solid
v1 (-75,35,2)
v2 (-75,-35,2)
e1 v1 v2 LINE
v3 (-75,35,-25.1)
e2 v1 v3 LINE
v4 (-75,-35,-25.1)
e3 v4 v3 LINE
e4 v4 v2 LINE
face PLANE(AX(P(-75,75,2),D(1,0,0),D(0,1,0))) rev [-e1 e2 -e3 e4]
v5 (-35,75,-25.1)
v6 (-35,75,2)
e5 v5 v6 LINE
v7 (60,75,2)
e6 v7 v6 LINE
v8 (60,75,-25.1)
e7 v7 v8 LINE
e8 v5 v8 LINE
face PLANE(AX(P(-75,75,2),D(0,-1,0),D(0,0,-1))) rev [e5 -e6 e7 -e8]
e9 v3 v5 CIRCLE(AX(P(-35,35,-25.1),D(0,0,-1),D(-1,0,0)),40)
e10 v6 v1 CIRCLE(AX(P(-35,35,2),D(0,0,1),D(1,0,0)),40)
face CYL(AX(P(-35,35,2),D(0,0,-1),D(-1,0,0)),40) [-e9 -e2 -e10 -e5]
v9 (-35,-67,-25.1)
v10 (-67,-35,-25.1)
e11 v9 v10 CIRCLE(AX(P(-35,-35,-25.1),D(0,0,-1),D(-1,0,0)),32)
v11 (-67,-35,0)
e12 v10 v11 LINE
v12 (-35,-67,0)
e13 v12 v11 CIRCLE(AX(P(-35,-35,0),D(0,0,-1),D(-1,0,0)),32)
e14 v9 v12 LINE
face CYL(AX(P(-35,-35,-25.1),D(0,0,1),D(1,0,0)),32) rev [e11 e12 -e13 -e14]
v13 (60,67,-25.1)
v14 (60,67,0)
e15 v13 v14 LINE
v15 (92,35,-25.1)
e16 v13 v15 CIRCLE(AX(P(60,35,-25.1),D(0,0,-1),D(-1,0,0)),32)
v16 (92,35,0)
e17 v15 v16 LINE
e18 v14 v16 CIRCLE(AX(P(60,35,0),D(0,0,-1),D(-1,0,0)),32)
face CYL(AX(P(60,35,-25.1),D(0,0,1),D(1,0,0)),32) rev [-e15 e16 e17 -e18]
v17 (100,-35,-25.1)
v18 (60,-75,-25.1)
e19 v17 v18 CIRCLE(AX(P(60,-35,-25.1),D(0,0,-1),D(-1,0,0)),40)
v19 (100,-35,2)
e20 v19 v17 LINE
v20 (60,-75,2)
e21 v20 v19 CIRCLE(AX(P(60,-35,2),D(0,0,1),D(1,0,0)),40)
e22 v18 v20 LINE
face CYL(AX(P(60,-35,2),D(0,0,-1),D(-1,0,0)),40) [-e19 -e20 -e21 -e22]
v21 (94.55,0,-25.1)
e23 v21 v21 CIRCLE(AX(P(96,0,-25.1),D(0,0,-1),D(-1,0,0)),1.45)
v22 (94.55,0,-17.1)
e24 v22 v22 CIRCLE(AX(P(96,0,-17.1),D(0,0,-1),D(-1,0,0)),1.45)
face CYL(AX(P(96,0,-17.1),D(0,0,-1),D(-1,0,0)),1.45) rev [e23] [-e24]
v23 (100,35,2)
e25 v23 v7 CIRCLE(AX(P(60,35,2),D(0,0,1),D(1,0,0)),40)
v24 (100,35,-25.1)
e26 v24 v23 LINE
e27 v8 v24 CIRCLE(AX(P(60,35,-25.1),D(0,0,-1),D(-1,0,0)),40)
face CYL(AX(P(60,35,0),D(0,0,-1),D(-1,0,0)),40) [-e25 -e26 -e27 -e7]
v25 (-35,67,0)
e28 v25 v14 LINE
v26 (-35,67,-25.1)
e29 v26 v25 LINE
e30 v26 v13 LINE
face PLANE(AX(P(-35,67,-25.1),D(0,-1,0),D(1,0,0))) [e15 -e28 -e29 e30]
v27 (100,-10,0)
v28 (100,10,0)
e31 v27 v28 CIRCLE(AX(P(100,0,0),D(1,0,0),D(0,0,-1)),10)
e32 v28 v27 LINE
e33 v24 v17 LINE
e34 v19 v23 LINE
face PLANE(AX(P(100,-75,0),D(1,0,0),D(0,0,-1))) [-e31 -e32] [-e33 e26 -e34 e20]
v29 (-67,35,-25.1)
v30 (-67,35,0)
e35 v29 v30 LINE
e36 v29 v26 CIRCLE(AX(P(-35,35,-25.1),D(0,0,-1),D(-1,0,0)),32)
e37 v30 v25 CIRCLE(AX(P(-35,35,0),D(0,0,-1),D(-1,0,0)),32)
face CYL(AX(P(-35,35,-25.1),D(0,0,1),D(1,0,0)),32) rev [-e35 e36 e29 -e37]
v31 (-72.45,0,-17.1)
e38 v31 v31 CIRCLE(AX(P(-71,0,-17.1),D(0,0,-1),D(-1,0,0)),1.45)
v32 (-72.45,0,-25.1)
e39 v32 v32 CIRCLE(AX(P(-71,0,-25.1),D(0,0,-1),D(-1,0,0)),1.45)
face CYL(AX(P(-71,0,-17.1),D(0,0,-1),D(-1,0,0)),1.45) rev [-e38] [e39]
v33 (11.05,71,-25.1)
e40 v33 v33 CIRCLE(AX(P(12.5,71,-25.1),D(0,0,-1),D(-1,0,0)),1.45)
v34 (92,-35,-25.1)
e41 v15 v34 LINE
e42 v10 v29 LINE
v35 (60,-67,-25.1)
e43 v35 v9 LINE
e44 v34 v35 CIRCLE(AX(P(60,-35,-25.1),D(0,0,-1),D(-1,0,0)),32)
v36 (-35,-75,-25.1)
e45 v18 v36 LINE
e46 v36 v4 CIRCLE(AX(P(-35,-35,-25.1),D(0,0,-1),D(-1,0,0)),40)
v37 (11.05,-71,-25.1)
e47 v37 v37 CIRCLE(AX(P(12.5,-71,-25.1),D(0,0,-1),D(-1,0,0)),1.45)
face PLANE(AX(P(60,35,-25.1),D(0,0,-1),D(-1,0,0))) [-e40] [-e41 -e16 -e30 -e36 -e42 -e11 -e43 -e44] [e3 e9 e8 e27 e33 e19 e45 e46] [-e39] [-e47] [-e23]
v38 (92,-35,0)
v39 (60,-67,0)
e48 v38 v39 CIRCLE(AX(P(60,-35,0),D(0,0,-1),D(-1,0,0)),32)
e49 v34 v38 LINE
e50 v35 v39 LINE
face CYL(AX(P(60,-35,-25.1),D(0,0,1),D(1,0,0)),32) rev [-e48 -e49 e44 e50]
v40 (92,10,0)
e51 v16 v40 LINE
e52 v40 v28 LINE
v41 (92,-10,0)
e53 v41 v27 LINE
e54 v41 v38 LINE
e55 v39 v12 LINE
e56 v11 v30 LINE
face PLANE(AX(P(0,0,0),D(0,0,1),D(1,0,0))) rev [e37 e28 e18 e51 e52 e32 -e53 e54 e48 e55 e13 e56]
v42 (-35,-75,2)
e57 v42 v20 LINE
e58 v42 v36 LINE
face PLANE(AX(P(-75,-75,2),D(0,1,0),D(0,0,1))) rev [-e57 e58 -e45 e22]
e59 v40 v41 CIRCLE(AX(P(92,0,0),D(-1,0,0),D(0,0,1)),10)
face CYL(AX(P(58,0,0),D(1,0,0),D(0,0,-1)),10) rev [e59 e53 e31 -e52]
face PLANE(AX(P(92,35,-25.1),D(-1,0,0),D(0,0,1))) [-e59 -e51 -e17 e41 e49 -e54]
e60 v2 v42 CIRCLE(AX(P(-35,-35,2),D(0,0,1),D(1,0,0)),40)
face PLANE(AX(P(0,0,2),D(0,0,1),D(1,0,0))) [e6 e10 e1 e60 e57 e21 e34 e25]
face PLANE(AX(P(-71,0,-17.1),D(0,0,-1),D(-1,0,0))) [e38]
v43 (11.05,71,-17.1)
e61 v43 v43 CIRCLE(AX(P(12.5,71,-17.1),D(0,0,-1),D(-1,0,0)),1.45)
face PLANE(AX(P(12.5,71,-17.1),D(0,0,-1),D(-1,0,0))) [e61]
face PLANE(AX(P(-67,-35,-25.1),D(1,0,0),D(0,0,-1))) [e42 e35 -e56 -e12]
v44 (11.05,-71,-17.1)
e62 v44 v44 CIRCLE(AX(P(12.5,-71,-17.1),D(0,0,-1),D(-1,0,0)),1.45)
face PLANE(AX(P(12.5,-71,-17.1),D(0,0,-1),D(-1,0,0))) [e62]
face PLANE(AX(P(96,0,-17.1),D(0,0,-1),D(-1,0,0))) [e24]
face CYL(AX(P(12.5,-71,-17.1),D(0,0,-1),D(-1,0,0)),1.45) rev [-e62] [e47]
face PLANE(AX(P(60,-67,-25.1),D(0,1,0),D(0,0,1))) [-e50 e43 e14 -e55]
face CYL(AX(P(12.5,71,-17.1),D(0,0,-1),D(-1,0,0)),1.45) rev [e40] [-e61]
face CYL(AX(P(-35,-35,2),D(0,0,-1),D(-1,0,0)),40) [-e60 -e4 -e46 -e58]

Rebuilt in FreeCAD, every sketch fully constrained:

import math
import FreeCAD as App
import Part
import Sketcher


def edges_at(feature, points):
    """Names of the edges that pass closest to the given points."""
    edges = feature.Shape.Edges
    near = lambda p: min(range(len(edges)), key=lambda i: edges[i].distToShape(Part.Vertex(*p))[0])
    return sorted({f"Edge{near(p) + 1}" for p in points})


def add_polygon(sketch, points):
    """Adds a closed chain of lines whose ends are joined by coincident constraints."""
    first, n = sketch.GeometryCount, len(points)
    for a, b in zip(points, points[1:] + points[:1]):
        sketch.addGeometry(Part.LineSegment(App.Vector(*a, 0), App.Vector(*b, 0)), False)
    for i in range(n):
        sketch.addConstraint(Sketcher.Constraint("Coincident", first + i, 2, first + (i + 1) % n, 1))

doc = App.newDocument("Part")
params = doc.addObject("Spreadsheet::Sheet", "Params")
for row, (alias, value) in enumerate([
    ("sketch1_width", "150 mm"),
    ("pad1_length", "2 mm"),
    ("fillet_radius", "40 mm"),
    ("sketch2_radius", "40 mm"),
    ("sketch2_width", "65 mm"),
    ("sketch2_height", "70 mm"),
    ("pad2_length", "2 mm"),
    ("fillet2_radius", "40 mm"),
    ("sketch3_radius", "40 mm"),
    ("sketch3_radius2", "32 mm"),
    ("sketch3_width", "95 mm"),
    ("sketch3_height", "70 mm"),
    ("pad3_length", "25.1 mm"),
    ("sketch4_diameter", "2.9 mm"),
    ("pocket1_length", "8 mm"),
    ("sketch5_radius", "10 mm"),
    ("pocket2_length", "42 mm"),
], start=1):
    params.set(f"A{row}", alias)
    params.set(f"B{row}", "=" + value)
    params.setAlias(f"B{row}", alias)

body = doc.addObject("PartDesign::Body", "Body")

# Sketch on XY plane
sketch1 = body.newObject("Sketcher::SketchObject", "Sketch")
sketch1.AttachmentSupport = (doc.getObject("XY_Plane"), [""])
sketch1.MapMode = "FlatFace"
add_polygon(sketch1, [(-75, 75), (-75, -75), (75, -75), (75, 75)])  # lines 0-3
sketch1.addConstraint(Sketcher.Constraint("Vertical", 0))
sketch1.addConstraint(Sketcher.Constraint("Horizontal", 1))
sketch1.addConstraint(Sketcher.Constraint("Vertical", 2))
sketch1.addConstraint(Sketcher.Constraint("Horizontal", 3))
sketch1.addConstraint(Sketcher.Constraint("Symmetric", 0, 2, 2, 2, -1, 1))
sketch1.addConstraint(Sketcher.Constraint("Equal", 3, 0))
sketch1.addConstraint(Sketcher.Constraint("DistanceX", 1, 1, 1, 2, 150.0))
sketch1.setExpression("Constraints[10]", "Params.sketch1_width")
pad1 = body.newObject("PartDesign::Pad", "Pad")
pad1.Profile = sketch1
pad1.setExpression("Length", "Params.pad1_length")
doc.recompute()

fillet = body.newObject("PartDesign::Fillet", "Fillet")
fillet.Base = (pad1, edges_at(pad1, [
    (-75, 75, 1),
    (75, 75, 1),
    (75, -75, 1),
    (-75, -75, 1),
]))
fillet.setExpression("Radius", "Params.fillet_radius")

# Sketch on XY plane
sketch2 = body.newObject("Sketcher::SketchObject", "Sketch001")
sketch2.AttachmentSupport = (doc.getObject("XY_Plane"), [""])
sketch2.MapMode = "FlatFace"
sketch2.AttachmentOffset = App.Placement(App.Vector(0, 0, 2), App.Rotation())
sketch2.addGeometry(Part.LineSegment(App.Vector(100, 75, 0), App.Vector(35, 75, 0)), False)
sketch2.addGeometry(Part.ArcOfCircle(Part.Circle(App.Vector(35, 35, 0), App.Vector(0, 0, 1), 40), math.radians(0), math.radians(90)), False)
sketch2.addGeometry(Part.LineSegment(App.Vector(75, 35, 0), App.Vector(75, -35, 0)), False)
sketch2.addGeometry(Part.ArcOfCircle(Part.Circle(App.Vector(35, -35, 0), App.Vector(0, 0, 1), 40), math.radians(-90), math.radians(0)), False)
sketch2.addGeometry(Part.LineSegment(App.Vector(35, -75, 0), App.Vector(100, -75, 0)), False)
sketch2.addGeometry(Part.LineSegment(App.Vector(100, -75, 0), App.Vector(100, 75, 0)), False)
sketch2.addConstraint(Sketcher.Constraint("Tangent", 0, 2, 1, 2))
sketch2.addConstraint(Sketcher.Constraint("Tangent", 1, 1, 2, 1))
sketch2.addConstraint(Sketcher.Constraint("Tangent", 2, 2, 3, 2))
sketch2.addConstraint(Sketcher.Constraint("Tangent", 3, 1, 4, 1))
sketch2.addConstraint(Sketcher.Constraint("Coincident", 4, 2, 5, 1))
sketch2.addConstraint(Sketcher.Constraint("Coincident", 5, 2, 0, 1))
sketch2.addConstraint(Sketcher.Constraint("Horizontal", 0))
sketch2.addConstraint(Sketcher.Constraint("Vertical", 2))
sketch2.addConstraint(Sketcher.Constraint("Horizontal", 4))
sketch2.addConstraint(Sketcher.Constraint("Vertical", 5))
sketch2.addConstraint(Sketcher.Constraint("Equal", 1, 3))
sketch2.addConstraint(Sketcher.Constraint("Radius", 1, 40.0))
sketch2.addConstraint(Sketcher.Constraint("DistanceX", 0, 2, 0, 1, 65.0))
sketch2.addConstraint(Sketcher.Constraint("DistanceY", 2, 2, 2, 1, 70.0))
sketch2.addConstraint(Sketcher.Constraint("DistanceX", -1, 1, 1, 3, 35.0))
sketch2.addConstraint(Sketcher.Constraint("DistanceY", -1, 1, 1, 3, 35.0))
sketch2.setExpression("Constraints[11]", "Params.sketch2_radius")
sketch2.setExpression("Constraints[12]", "Params.sketch2_width")
sketch2.setExpression("Constraints[13]", "Params.sketch2_height")
pad2 = body.newObject("PartDesign::Pad", "Pad001")
pad2.Profile = sketch2
pad2.setExpression("Length", "Params.pad2_length")
pad2.Reversed = True
doc.recompute()

fillet2 = body.newObject("PartDesign::Fillet", "Fillet001")
fillet2.Base = (pad2, edges_at(pad2, [(100, 75, 1), (100, -75, 1)]))
fillet2.setExpression("Radius", "Params.fillet2_radius")

# Sketch on XY plane
sketch3 = body.newObject("Sketcher::SketchObject", "Sketch002")
sketch3.AttachmentSupport = (doc.getObject("XY_Plane"), [""])
sketch3.MapMode = "FlatFace"
sketch3.addGeometry(Part.LineSegment(App.Vector(100, 35, 0), App.Vector(100, -35, 0)), False)
sketch3.addGeometry(Part.ArcOfCircle(Part.Circle(App.Vector(60, -35, 0), App.Vector(0, 0, 1), 40), math.radians(-90), math.radians(0)), False)
sketch3.addGeometry(Part.LineSegment(App.Vector(60, -75, 0), App.Vector(-35, -75, 0)), False)
sketch3.addGeometry(Part.ArcOfCircle(Part.Circle(App.Vector(-35, -35, 0), App.Vector(0, 0, 1), 40), math.radians(-180), math.radians(-90)), False)
sketch3.addGeometry(Part.LineSegment(App.Vector(-75, -35, 0), App.Vector(-75, 35, 0)), False)
sketch3.addGeometry(Part.ArcOfCircle(Part.Circle(App.Vector(-35, 35, 0), App.Vector(0, 0, 1), 40), math.radians(90), math.radians(180)), False)
sketch3.addGeometry(Part.LineSegment(App.Vector(-35, 75, 0), App.Vector(60, 75, 0)), False)
sketch3.addGeometry(Part.ArcOfCircle(Part.Circle(App.Vector(60, 35, 0), App.Vector(0, 0, 1), 40), math.radians(0), math.radians(90)), False)
sketch3.addGeometry(Part.LineSegment(App.Vector(60, 67, 0), App.Vector(-35, 67, 0)), False)
sketch3.addGeometry(Part.ArcOfCircle(Part.Circle(App.Vector(-35, 35, 0), App.Vector(0, 0, 1), 32), math.radians(90), math.radians(180)), False)
sketch3.addGeometry(Part.LineSegment(App.Vector(-67, 35, 0), App.Vector(-67, -35, 0)), False)
sketch3.addGeometry(Part.ArcOfCircle(Part.Circle(App.Vector(-35, -35, 0), App.Vector(0, 0, 1), 32), math.radians(180), math.radians(270)), False)
sketch3.addGeometry(Part.LineSegment(App.Vector(-35, -67, 0), App.Vector(60, -67, 0)), False)
sketch3.addGeometry(Part.ArcOfCircle(Part.Circle(App.Vector(60, -35, 0), App.Vector(0, 0, 1), 32), math.radians(-90), math.radians(0)), False)
sketch3.addGeometry(Part.LineSegment(App.Vector(92, -35, 0), App.Vector(92, 35, 0)), False)
sketch3.addGeometry(Part.ArcOfCircle(Part.Circle(App.Vector(60, 35, 0), App.Vector(0, 0, 1), 32), math.radians(0), math.radians(90)), False)
sketch3.addConstraint(Sketcher.Constraint("Tangent", 0, 2, 1, 2))
sketch3.addConstraint(Sketcher.Constraint("Tangent", 1, 1, 2, 1))
sketch3.addConstraint(Sketcher.Constraint("Tangent", 2, 2, 3, 2))
sketch3.addConstraint(Sketcher.Constraint("Tangent", 3, 1, 4, 1))
sketch3.addConstraint(Sketcher.Constraint("Tangent", 4, 2, 5, 2))
sketch3.addConstraint(Sketcher.Constraint("Tangent", 5, 1, 6, 1))
sketch3.addConstraint(Sketcher.Constraint("Tangent", 6, 2, 7, 2))
sketch3.addConstraint(Sketcher.Constraint("Tangent", 7, 1, 0, 1))
sketch3.addConstraint(Sketcher.Constraint("Tangent", 8, 2, 9, 1))
sketch3.addConstraint(Sketcher.Constraint("Tangent", 9, 2, 10, 1))
sketch3.addConstraint(Sketcher.Constraint("Tangent", 10, 2, 11, 1))
sketch3.addConstraint(Sketcher.Constraint("Tangent", 11, 2, 12, 1))
sketch3.addConstraint(Sketcher.Constraint("Tangent", 12, 2, 13, 1))
sketch3.addConstraint(Sketcher.Constraint("Tangent", 13, 2, 14, 1))
sketch3.addConstraint(Sketcher.Constraint("Tangent", 14, 2, 15, 1))
sketch3.addConstraint(Sketcher.Constraint("Tangent", 15, 2, 8, 1))
sketch3.addConstraint(Sketcher.Constraint("Vertical", 0))
sketch3.addConstraint(Sketcher.Constraint("Horizontal", 2))
sketch3.addConstraint(Sketcher.Constraint("Vertical", 4))
sketch3.addConstraint(Sketcher.Constraint("Horizontal", 6))
sketch3.addConstraint(Sketcher.Constraint("Horizontal", 8))
sketch3.addConstraint(Sketcher.Constraint("Vertical", 10))
sketch3.addConstraint(Sketcher.Constraint("Horizontal", 12))
sketch3.addConstraint(Sketcher.Constraint("Vertical", 14))
sketch3.addConstraint(Sketcher.Constraint("Coincident", 9, 3, 5, 3))
sketch3.addConstraint(Sketcher.Constraint("Coincident", 11, 3, 3, 3))
sketch3.addConstraint(Sketcher.Constraint("Coincident", 13, 3, 1, 3))
sketch3.addConstraint(Sketcher.Constraint("Equal", 1, 3))
sketch3.addConstraint(Sketcher.Constraint("Equal", 3, 5))
sketch3.addConstraint(Sketcher.Constraint("Equal", 5, 7))
sketch3.addConstraint(Sketcher.Constraint("Equal", 13, 15))
sketch3.addConstraint(Sketcher.Constraint("Radius", 1, 40.0))
sketch3.addConstraint(Sketcher.Constraint("Radius", 9, 32.0))
sketch3.addConstraint(Sketcher.Constraint("DistanceX", 2, 2, 2, 1, 95.0))
sketch3.addConstraint(Sketcher.Constraint("DistanceY", 0, 2, 0, 1, 70.0))
sketch3.addConstraint(Sketcher.Constraint("DistanceX", -1, 1, 1, 3, 60.0))
sketch3.addConstraint(Sketcher.Constraint("DistanceY", 1, 3, -1, 1, 35.0))
sketch3.setExpression("Constraints[31]", "Params.sketch3_radius")
sketch3.setExpression("Constraints[32]", "Params.sketch3_radius2")
sketch3.setExpression("Constraints[33]", "Params.sketch3_width")
sketch3.setExpression("Constraints[34]", "Params.sketch3_height")
pad3 = body.newObject("PartDesign::Pad", "Pad002")
pad3.Profile = sketch3
pad3.setExpression("Length", "Params.pad3_length")
pad3.Reversed = True

# Sketch on XY plane
sketch4 = body.newObject("Sketcher::SketchObject", "Sketch003")
sketch4.AttachmentSupport = (doc.getObject("XY_Plane"), [""])
sketch4.MapMode = "FlatFace"
sketch4.AttachmentOffset = App.Placement(App.Vector(0, 0, -25.1), App.Rotation())
sketch4.addGeometry(Part.Circle(App.Vector(96, 0, 0), App.Vector(0, 0, 1), 1.45), False)
sketch4.addGeometry(Part.Circle(App.Vector(12.5, 71, 0), App.Vector(0, 0, 1), 1.45), False)
sketch4.addGeometry(Part.Circle(App.Vector(-71, 0, 0), App.Vector(0, 0, 1), 1.45), False)
sketch4.addGeometry(Part.Circle(App.Vector(12.5, -71, 0), App.Vector(0, 0, 1), 1.45), False)
sketch4.addConstraint(Sketcher.Constraint("Equal", 0, 1))
sketch4.addConstraint(Sketcher.Constraint("Equal", 1, 2))
sketch4.addConstraint(Sketcher.Constraint("Equal", 2, 3))
sketch4.addConstraint(Sketcher.Constraint("Symmetric", 1, 3, 3, 3, -1))
sketch4.addConstraint(Sketcher.Constraint("PointOnObject", 0, 3, -1))
sketch4.addConstraint(Sketcher.Constraint("PointOnObject", 2, 3, -1))
sketch4.addConstraint(Sketcher.Constraint("Diameter", 0, 2.9))
sketch4.addConstraint(Sketcher.Constraint("DistanceX", -1, 1, 0, 3, 96.0))
sketch4.addConstraint(Sketcher.Constraint("DistanceY", -1, 1, 1, 3, 71.0))
sketch4.addConstraint(Sketcher.Constraint("DistanceX", 2, 3, -1, 1, 71.0))
sketch4.addConstraint(Sketcher.Constraint("DistanceX", -1, 1, 1, 3, 12.5))
sketch4.setExpression("Constraints[6]", "Params.sketch4_diameter")
pocket1 = body.newObject("PartDesign::Pocket", "Pocket")
pocket1.Profile = sketch4
pocket1.setExpression("Length", "Params.pocket1_length")
pocket1.Reversed = True

# Sketch on YZ plane
sketch5 = body.newObject("Sketcher::SketchObject", "Sketch004")
sketch5.AttachmentSupport = (doc.getObject("YZ_Plane"), [""])
sketch5.MapMode = "FlatFace"
sketch5.AttachmentOffset = App.Placement(App.Vector(0, 0, 100), App.Rotation())
sketch5.addGeometry(Part.LineSegment(App.Vector(10, 0, 0), App.Vector(-10, 0, 0)), False)
sketch5.addGeometry(Part.ArcOfCircle(Part.Circle(App.Vector(0, 0, 0), App.Vector(0, 0, 1), 10), math.radians(180), math.radians(360)), False)
sketch5.addConstraint(Sketcher.Constraint("Coincident", 0, 1, 1, 2))
sketch5.addConstraint(Sketcher.Constraint("Coincident", 1, 1, 0, 2))
sketch5.addConstraint(Sketcher.Constraint("Horizontal", 0))
sketch5.addConstraint(Sketcher.Constraint("Coincident", 1, 3, -1, 1))
sketch5.addConstraint(Sketcher.Constraint("PointOnObject", 0, 1, -1))
sketch5.addConstraint(Sketcher.Constraint("Radius", 1, 10.0))
sketch5.setExpression("Constraints[5]", "Params.sketch5_radius")
pocket2 = body.newObject("PartDesign::Pocket", "Pocket001")
pocket2.Profile = sketch5
pocket2.setExpression("Length", "Params.pocket2_length")

doc.recompute()
